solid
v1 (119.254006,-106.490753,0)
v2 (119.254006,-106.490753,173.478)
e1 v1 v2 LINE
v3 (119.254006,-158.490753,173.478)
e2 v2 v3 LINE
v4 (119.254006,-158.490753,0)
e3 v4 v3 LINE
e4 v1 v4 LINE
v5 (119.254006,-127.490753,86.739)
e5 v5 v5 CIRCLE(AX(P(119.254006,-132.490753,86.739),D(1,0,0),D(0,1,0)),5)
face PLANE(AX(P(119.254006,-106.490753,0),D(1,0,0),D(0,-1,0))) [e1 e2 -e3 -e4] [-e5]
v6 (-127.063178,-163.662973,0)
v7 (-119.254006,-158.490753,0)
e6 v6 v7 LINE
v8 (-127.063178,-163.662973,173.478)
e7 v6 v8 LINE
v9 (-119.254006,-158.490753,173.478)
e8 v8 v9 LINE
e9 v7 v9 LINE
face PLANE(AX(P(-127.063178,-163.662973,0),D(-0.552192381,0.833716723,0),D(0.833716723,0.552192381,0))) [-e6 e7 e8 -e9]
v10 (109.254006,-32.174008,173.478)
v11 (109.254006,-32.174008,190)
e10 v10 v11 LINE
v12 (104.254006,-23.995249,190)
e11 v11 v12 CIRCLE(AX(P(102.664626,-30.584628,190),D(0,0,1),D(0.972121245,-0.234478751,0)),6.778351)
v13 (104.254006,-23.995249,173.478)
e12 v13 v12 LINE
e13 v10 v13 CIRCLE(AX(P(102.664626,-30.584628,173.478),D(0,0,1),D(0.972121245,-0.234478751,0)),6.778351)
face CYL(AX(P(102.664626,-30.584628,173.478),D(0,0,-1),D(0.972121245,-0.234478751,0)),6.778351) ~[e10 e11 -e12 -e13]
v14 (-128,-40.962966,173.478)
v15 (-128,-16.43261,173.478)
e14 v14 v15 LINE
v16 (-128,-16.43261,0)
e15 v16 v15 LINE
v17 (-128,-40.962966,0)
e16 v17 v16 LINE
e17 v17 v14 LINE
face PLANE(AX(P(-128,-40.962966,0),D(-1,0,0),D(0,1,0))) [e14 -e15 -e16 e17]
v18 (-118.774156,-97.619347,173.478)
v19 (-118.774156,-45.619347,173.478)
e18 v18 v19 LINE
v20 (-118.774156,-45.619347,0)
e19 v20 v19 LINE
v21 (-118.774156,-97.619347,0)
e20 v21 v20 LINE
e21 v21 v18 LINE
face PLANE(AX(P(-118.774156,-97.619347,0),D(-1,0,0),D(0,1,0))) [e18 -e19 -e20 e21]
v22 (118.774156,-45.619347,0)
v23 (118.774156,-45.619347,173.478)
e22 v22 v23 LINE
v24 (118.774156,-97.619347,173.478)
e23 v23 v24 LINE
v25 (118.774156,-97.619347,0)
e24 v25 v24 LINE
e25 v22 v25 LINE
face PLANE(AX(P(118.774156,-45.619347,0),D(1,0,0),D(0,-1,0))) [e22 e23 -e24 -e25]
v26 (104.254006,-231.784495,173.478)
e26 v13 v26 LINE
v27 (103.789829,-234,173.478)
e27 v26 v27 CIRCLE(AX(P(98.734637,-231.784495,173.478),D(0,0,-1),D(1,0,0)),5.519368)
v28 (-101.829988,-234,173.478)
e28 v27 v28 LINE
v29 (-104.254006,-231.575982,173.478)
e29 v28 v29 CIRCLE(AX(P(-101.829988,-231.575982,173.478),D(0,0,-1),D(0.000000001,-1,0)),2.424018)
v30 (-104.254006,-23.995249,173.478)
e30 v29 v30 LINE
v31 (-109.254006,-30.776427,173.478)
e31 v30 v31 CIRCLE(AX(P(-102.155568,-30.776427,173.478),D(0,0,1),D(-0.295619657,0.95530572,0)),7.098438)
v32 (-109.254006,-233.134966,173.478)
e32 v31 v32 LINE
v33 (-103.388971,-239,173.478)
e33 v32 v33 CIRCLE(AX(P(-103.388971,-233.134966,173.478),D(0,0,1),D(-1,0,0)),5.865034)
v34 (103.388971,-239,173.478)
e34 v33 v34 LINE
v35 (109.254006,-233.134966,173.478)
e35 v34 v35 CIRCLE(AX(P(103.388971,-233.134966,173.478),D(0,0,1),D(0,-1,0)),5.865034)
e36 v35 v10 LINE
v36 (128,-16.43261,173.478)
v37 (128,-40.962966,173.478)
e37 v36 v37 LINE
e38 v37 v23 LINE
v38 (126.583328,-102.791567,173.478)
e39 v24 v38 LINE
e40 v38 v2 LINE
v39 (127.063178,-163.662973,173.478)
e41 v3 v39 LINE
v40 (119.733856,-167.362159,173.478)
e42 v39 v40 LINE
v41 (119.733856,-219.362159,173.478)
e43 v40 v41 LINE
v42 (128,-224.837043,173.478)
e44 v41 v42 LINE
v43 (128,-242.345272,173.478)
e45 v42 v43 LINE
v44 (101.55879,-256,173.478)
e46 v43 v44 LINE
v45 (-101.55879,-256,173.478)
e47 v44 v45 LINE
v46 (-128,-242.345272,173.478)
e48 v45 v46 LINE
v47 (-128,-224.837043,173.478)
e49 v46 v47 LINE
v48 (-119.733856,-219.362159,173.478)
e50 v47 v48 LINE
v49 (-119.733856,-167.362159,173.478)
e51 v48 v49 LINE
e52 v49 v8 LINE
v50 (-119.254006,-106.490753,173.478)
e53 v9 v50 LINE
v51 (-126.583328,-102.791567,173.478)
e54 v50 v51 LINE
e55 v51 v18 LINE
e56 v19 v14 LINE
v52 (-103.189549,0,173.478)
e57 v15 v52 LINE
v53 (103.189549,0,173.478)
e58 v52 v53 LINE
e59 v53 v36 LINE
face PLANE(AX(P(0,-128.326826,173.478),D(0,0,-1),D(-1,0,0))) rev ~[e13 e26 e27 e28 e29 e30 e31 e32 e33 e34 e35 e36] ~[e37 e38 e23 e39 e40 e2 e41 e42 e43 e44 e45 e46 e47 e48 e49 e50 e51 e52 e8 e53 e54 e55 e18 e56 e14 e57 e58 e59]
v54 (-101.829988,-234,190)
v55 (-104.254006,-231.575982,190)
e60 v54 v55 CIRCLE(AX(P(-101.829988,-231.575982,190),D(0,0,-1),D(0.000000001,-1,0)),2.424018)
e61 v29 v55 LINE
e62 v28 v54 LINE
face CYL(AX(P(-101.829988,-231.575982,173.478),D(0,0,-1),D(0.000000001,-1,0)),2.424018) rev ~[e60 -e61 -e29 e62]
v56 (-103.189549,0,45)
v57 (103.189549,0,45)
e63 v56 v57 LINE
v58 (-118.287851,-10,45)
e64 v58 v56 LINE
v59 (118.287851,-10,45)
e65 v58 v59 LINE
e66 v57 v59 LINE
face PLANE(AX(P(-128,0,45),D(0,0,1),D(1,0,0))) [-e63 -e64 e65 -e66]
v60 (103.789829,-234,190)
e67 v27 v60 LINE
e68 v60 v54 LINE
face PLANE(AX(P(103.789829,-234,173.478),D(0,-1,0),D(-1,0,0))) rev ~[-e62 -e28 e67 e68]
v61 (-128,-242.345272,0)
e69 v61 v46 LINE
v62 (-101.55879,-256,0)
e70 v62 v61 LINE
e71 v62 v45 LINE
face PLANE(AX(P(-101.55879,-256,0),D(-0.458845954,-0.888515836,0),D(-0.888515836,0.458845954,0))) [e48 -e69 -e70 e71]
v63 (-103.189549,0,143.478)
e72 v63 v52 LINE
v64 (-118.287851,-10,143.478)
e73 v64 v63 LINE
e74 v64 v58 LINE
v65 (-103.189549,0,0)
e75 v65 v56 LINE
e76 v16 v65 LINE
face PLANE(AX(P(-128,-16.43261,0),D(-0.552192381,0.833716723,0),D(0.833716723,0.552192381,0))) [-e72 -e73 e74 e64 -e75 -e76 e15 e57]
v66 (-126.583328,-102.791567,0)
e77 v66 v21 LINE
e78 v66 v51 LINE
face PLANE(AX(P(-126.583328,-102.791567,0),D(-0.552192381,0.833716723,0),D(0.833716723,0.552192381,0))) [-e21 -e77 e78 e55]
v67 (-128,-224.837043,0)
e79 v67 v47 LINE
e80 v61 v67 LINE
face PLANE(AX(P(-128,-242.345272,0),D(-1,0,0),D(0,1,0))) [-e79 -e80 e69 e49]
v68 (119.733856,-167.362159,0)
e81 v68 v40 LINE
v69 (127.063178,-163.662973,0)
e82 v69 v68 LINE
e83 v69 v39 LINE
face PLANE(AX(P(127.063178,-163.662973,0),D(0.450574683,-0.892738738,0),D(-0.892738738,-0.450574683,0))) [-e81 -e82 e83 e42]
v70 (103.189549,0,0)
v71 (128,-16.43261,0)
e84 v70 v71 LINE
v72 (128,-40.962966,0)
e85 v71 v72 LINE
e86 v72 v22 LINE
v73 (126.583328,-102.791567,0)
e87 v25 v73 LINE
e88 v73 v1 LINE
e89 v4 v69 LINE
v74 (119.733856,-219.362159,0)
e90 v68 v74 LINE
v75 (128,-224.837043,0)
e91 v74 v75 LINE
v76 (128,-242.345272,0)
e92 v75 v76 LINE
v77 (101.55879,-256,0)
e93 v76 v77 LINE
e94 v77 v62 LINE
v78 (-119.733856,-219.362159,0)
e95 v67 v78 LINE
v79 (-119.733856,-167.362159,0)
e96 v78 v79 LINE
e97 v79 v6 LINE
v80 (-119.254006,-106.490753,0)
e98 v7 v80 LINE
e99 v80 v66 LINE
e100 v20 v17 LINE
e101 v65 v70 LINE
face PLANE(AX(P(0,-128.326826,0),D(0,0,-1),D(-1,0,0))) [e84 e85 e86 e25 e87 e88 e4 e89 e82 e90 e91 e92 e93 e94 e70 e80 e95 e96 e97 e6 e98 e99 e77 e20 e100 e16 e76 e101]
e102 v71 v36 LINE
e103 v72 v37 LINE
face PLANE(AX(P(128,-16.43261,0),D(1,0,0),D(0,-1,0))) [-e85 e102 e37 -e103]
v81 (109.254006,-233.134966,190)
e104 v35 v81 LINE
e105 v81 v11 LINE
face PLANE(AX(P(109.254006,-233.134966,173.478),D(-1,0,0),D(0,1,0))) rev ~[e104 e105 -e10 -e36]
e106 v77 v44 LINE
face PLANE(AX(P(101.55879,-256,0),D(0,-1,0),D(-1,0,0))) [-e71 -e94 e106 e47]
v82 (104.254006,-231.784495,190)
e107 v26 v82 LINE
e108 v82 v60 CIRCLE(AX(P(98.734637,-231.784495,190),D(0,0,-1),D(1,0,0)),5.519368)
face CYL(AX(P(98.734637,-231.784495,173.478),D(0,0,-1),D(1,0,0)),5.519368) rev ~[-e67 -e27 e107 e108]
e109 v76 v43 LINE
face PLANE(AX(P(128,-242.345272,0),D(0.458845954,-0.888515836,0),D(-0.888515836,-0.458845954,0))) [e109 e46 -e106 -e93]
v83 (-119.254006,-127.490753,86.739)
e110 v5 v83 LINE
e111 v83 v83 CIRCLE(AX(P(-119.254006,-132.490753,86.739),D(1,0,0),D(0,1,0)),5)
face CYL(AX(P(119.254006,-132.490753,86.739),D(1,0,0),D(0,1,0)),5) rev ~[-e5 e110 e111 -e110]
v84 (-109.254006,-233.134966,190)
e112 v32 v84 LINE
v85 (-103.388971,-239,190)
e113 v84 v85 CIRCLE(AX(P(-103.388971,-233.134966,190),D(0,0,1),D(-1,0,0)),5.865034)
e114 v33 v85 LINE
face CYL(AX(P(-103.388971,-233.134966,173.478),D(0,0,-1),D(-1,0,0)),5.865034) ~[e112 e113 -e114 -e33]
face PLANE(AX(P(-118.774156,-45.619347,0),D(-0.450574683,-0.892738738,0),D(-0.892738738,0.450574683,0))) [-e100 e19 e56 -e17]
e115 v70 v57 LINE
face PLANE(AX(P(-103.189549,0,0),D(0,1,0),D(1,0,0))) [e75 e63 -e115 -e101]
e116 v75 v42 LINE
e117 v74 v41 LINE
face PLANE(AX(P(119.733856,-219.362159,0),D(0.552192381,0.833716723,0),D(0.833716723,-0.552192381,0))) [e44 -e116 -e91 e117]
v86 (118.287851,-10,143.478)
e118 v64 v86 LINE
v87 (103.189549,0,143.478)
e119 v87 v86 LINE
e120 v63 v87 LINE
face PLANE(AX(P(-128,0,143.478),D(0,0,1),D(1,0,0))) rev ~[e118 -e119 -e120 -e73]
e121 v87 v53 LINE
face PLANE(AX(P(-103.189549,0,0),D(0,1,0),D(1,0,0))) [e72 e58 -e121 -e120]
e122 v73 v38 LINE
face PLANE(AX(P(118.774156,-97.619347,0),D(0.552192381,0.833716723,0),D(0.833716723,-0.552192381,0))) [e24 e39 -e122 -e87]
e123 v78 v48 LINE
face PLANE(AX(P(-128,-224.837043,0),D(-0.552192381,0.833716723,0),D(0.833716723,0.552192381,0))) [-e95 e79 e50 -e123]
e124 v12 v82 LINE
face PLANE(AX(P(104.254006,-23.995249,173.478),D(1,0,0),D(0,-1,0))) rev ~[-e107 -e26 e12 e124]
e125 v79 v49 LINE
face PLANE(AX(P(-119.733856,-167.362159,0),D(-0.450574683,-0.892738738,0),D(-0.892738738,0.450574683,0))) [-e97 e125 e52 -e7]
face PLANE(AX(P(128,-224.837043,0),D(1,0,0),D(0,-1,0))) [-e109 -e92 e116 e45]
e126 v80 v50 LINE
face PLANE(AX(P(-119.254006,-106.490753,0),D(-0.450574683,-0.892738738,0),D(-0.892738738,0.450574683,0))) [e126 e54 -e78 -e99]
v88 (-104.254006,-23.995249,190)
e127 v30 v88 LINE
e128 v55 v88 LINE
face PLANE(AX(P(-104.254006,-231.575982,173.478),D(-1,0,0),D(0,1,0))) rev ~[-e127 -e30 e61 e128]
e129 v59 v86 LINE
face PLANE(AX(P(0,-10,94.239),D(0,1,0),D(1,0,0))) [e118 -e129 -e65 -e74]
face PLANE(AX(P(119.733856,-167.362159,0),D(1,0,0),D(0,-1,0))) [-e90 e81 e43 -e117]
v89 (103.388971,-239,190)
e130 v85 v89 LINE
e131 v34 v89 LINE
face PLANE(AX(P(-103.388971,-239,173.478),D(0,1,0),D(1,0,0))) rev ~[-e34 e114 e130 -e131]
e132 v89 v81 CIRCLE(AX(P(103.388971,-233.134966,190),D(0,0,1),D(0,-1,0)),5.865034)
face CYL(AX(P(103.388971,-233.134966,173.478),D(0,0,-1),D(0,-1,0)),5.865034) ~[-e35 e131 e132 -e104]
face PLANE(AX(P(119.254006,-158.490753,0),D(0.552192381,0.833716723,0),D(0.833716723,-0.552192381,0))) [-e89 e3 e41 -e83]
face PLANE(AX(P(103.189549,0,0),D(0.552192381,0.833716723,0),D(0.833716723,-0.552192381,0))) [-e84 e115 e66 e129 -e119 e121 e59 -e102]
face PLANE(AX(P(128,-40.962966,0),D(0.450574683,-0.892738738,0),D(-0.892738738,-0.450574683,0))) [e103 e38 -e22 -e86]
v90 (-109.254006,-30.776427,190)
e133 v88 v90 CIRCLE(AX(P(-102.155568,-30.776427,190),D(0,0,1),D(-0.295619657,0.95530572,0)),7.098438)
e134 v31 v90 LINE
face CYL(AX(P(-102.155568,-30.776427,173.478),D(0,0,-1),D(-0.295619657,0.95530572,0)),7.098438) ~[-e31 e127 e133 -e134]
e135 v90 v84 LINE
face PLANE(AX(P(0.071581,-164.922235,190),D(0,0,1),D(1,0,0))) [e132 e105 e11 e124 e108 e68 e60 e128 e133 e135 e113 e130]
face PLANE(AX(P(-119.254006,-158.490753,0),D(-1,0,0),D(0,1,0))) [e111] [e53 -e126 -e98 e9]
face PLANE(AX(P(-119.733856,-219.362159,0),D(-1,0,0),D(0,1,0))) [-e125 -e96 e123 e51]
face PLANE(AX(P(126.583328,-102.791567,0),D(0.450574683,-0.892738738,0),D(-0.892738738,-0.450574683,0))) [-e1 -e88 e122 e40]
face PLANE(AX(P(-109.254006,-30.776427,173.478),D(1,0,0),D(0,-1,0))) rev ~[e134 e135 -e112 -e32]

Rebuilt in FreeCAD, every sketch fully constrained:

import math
import FreeCAD as App
import Part
import Sketcher
from FreeCAD import Vector
Q = App.Units.Quantity


def add_polygon(sketch, points):
    """Adds a closed chain of lines whose ends are joined by coincident constraints."""
    first, n = sketch.GeometryCount, len(points)
    for a, b in zip(points, points[1:] + points[:1]):
        sketch.addGeometry(Part.LineSegment(App.Vector(*a, 0), App.Vector(*b, 0)), False)
    for i in range(n):
        sketch.addConstraint(Sketcher.Constraint("Coincident", first + i, 2, first + (i + 1) % n, 1))

doc = App.newDocument("Part")
body = doc.addObject("PartDesign::Body", "Body")

# Sketch on XY plane
sketch1 = body.newObject("Sketcher::SketchObject", "Sketch")
sketch1.AttachmentSupport = (doc.getObject("XY_Plane"), [""])
sketch1.MapMode = "FlatFace"
add_polygon(sketch1, [(103, 0), (-103, 0), (-128, -16), (-128, -41), (-119, -46), (-119, -98), (-127, -103), (-119, -106), (-119, -158), (-127, -164), (-120, -167), (-120, -219), (-128, -225), (-128, -242), (-102, -256), (102, -256), (128, -242), (128, -225), (120, -219), (120, -167), (127, -164), (119, -158), (119, -106), (127, -103), (119, -98), (119, -46), (128, -41), (128, -16)])  # lines 0-27
sketch1.addConstraint(Sketcher.Constraint("Horizontal", 0))
sketch1.addConstraint(Sketcher.Constraint("Vertical", 2))
sketch1.addConstraint(Sketcher.Constraint("Vertical", 4))
sketch1.addConstraint(Sketcher.Constraint("Vertical", 7))
sketch1.addConstraint(Sketcher.Constraint("Vertical", 10))
sketch1.addConstraint(Sketcher.Constraint("Vertical", 12))
sketch1.addConstraint(Sketcher.Constraint("Horizontal", 14))
sketch1.addConstraint(Sketcher.Constraint("Vertical", 16))
sketch1.addConstraint(Sketcher.Constraint("Vertical", 18))
sketch1.addConstraint(Sketcher.Constraint("Vertical", 21))
sketch1.addConstraint(Sketcher.Constraint("Vertical", 24))
sketch1.addConstraint(Sketcher.Constraint("Vertical", 26))
sketch1.addConstraint(Sketcher.Constraint("Symmetric", 0, 2, 27, 2, -1, 1))
sketch1.addConstraint(Sketcher.Constraint("Symmetric", 12, 2, 15, 2, -2))
sketch1.addConstraint(Sketcher.Constraint("Symmetric", 10, 2, 17, 2, -2))
sketch1.addConstraint(Sketcher.Constraint("Symmetric", 8, 2, 19, 2, -2))
sketch1.addConstraint(Sketcher.Constraint("Symmetric", 7, 2, 20, 2, -2))
sketch1.addConstraint(Sketcher.Constraint("Symmetric", 5, 2, 22, 2, -2))
sketch1.addConstraint(Sketcher.Constraint("Symmetric", 4, 2, 23, 2, -2))
sketch1.addConstraint(Sketcher.Constraint("Symmetric", 2, 2, 25, 2, -2))
sketch1.addConstraint(Sketcher.Constraint("Parallel", 1, 5))
sketch1.addConstraint(Sketcher.Constraint("Parallel", 3, 6))
sketch1.addConstraint(Sketcher.Constraint("Parallel", 5, 8))
sketch1.addConstraint(Sketcher.Constraint("Parallel", 6, 9))
sketch1.addConstraint(Sketcher.Constraint("Parallel", 8, 11))
sketch1.addConstraint(Sketcher.Constraint("Parallel", 17, 20))
sketch1.addConstraint(Sketcher.Constraint("Parallel", 19, 22))
sketch1.addConstraint(Sketcher.Constraint("Parallel", 22, 25))
sketch1.addConstraint(Sketcher.Constraint("Parallel", 23, 27))
sketch1.addConstraint(Sketcher.Constraint("Horizontal", 9, 2, 18, 2))
sketch1.addConstraint(Sketcher.Constraint("Vertical", 2, 2, 11, 2))
sketch1.addConstraint(Sketcher.Constraint("Equal", 4, 7))
sketch1.addConstraint(Sketcher.Constraint("Equal", 7, 10))
sketch1.addConstraint(Sketcher.Constraint("Equal", 5, 8))
sketch1.addConstraint(Sketcher.Constraint("Equal", 6, 9))
sketch1.addConstraint(Sketcher.Constraint("Equal", 1, 13))
sketch1.addConstraint(Sketcher.Constraint("Equal", 13, 15))
sketch1.addConstraint(Sketcher.Constraint("DistanceY", 4, 2, 4, 1, Q("52 mm")))
sketch1.addConstraint(Sketcher.Constraint("DistanceX", 1, 2, -1, 1, Q("128 mm")))
sketch1.addConstraint(Sketcher.Constraint("DistanceY", 13, 2, -1, 1, Q("256 mm")))
sketch1.addConstraint(Sketcher.Constraint("Distance", 5, Q("9.366698 mm")))
sketch1.addConstraint(Sketcher.Constraint("DistanceX", 14, 1, 14, 2, Q("203.11758 mm")))
sketch1.addConstraint(Sketcher.Constraint("DistanceY", 12, 2, 12, 1, Q("17.508229 mm")))
sketch1.addConstraint(Sketcher.Constraint("DistanceY", 5, 2, 2, 2, Q("61.828601 mm")))
sketch1.addConstraint(Sketcher.Constraint("DistanceX", 9, 2, 4, 2, Q("0.9597 mm")))
sketch1.addConstraint(Sketcher.Constraint("DistanceY", 12, 2, 8, 2, Q("78.682299 mm")))
sketch1.addConstraint(Sketcher.Constraint("Distance", 1, Q("29.75885 mm")))
sketch1.addConstraint(Sketcher.Constraint("Distance", 6, Q("8.20993 mm")))
pad1 = body.newObject("PartDesign::Pad", "Pad")
pad1.Profile = sketch1
pad1.Length = 173.478

# Sketch on XY plane
sketch2 = body.newObject("Sketcher::SketchObject", "Sketch001")
sketch2.AttachmentSupport = (doc.getObject("XY_Plane"), [""])
sketch2.MapMode = "FlatFace"
sketch2.AttachmentOffset = App.Placement(Vector(0, 0, 173.478), App.Rotation())
sketch2.addGeometry(Part.LineSegment(Vector(-109.3, -30.8, 0), Vector(-109.3, -233.1, 0)), False)
sketch2.addGeometry(Part.ArcOfCircle(Part.Circle(Vector(-103.4, -233.1, 0), Vector(0, 0, 1), 5.9), math.radians(180), math.radians(270)), False)
sketch2.addGeometry(Part.LineSegment(Vector(-103.4, -239, 0), Vector(103.4, -239, 0)), False)
sketch2.addGeometry(Part.ArcOfCircle(Part.Circle(Vector(103.4, -233.1, 0), Vector(0, 0, 1), 5.9), math.radians(-90), math.radians(0)), False)
sketch2.addGeometry(Part.LineSegment(Vector(109.3, -233.1, 0), Vector(109.3, -32.2, 0)), False)
sketch2.addGeometry(Part.ArcOfCircle(Part.Circle(Vector(102.7, -30.6, 0), Vector(0, 0, 1), 6.8), math.radians(-14), math.radians(76)), False)
sketch2.addGeometry(Part.LineSegment(Vector(104.3, -24, 0), Vector(104.3, -231.8, 0)), False)
sketch2.addGeometry(Part.ArcOfCircle(Part.Circle(Vector(98.7, -231.8, 0), Vector(0, 0, 1), 5.5), math.radians(-24), math.radians(0)), False)
sketch2.addGeometry(Part.LineSegment(Vector(103.8, -234, 0), Vector(-101.8, -234, 0)), False)
sketch2.addGeometry(Part.ArcOfCircle(Part.Circle(Vector(-101.8, -231.6, 0), Vector(0, 0, 1), 2.4), math.radians(180), math.radians(270)), False)
sketch2.addGeometry(Part.LineSegment(Vector(-104.3, -231.6, 0), Vector(-104.3, -24, 0)), False)
sketch2.addGeometry(Part.ArcOfCircle(Part.Circle(Vector(-102.2, -30.8, 0), Vector(0, 0, 1), 7.1), math.radians(107), math.radians(180)), False)
sketch2.addConstraint(Sketcher.Constraint("Tangent", 0, 2, 1, 1))
sketch2.addConstraint(Sketcher.Constraint("Tangent", 1, 2, 2, 1))
sketch2.addConstraint(Sketcher.Constraint("Tangent", 2, 2, 3, 1))
sketch2.addConstraint(Sketcher.Constraint("Tangent", 3, 2, 4, 1))
sketch2.addConstraint(Sketcher.Constraint("Coincident", 4, 2, 5, 1))
sketch2.addConstraint(Sketcher.Constraint("Coincident", 5, 2, 6, 1))
sketch2.addConstraint(Sketcher.Constraint("Tangent", 6, 2, 7, 2))
sketch2.addConstraint(Sketcher.Constraint("Coincident", 7, 1, 8, 1))
sketch2.addConstraint(Sketcher.Constraint("Tangent", 8, 2, 9, 2))
sketch2.addConstraint(Sketcher.Constraint("Tangent", 9, 1, 10, 1))
sketch2.addConstraint(Sketcher.Constraint("Coincident", 10, 2, 11, 1))
sketch2.addConstraint(Sketcher.Constraint("Tangent", 11, 2, 0, 1))
sketch2.addConstraint(Sketcher.Constraint("Vertical", 0))
sketch2.addConstraint(Sketcher.Constraint("Horizontal", 2))
sketch2.addConstraint(Sketcher.Constraint("Vertical", 4))
sketch2.addConstraint(Sketcher.Constraint("Vertical", 6))
sketch2.addConstraint(Sketcher.Constraint("Horizontal", 8))
sketch2.addConstraint(Sketcher.Constraint("Vertical", 10))
sketch2.addConstraint(Sketcher.Constraint("Equal", 1, 3))
sketch2.addConstraint(Sketcher.Constraint("Symmetric", 5, 2, 10, 2, -2))
sketch2.addConstraint(Sketcher.Constraint("DistanceY", 1, 2, -1, 1, Q("239 mm")))
sketch2.addConstraint(Sketcher.Constraint("DistanceY", 7, 1, -1, 1, Q("234 mm")))
sketch2.addConstraint(Sketcher.Constraint("DistanceX", 5, 2, 4, 2, Q("5 mm")))
sketch2.addConstraint(Sketcher.Constraint("DistanceX", 0, 2, 9, 1, Q("5 mm")))
sketch2.addConstraint(Sketcher.Constraint("Radius", 5, Q("6.778351 mm")))
sketch2.addConstraint(Sketcher.Constraint("Radius", 7, Q("5.519368 mm")))
sketch2.addConstraint(Sketcher.Constraint("Radius", 9, Q("2.424018 mm")))
sketch2.addConstraint(Sketcher.Constraint("Radius", 1, Q("5.865034 mm")))
sketch2.addConstraint(Sketcher.Constraint("Radius", 11, Q("7.098438 mm")))
sketch2.addConstraint(Sketcher.Constraint("DistanceY", 0, 2, 0, 1, Q("202.358538 mm")))
sketch2.addConstraint(Sketcher.Constraint("DistanceY", 11, 3, 5, 3, Q("0.191799 mm")))
sketch2.addConstraint(Sketcher.Constraint("DistanceX", 2, 1, 2, 2, Q("206.777943 mm")))
sketch2.addConstraint(Sketcher.Constraint("DistanceX", 8, 2, 8, 1, Q("205.619817 mm")))
pad2 = body.newObject("PartDesign::Pad", "Pad001")
pad2.Profile = sketch2
pad2.Length = 16.522

# Sketch on XZ plane
sketch3 = body.newObject("Sketcher::SketchObject", "Sketch002")
sketch3.AttachmentSupport = (doc.getObject("XZ_Plane"), [""])
sketch3.MapMode = "FlatFace"
add_polygon(sketch3, [(-128, 45), (-128, 143), (128, 143), (128, 45)])  # lines 0-3
sketch3.addConstraint(Sketcher.Constraint("Vertical", 0))
sketch3.addConstraint(Sketcher.Constraint("Horizontal", 1))
sketch3.addConstraint(Sketcher.Constraint("Vertical", 2))
sketch3.addConstraint(Sketcher.Constraint("Horizontal", 3))
sketch3.addConstraint(Sketcher.Constraint("DistanceX", 1, 1, 1, 2, Q("256 mm")))
sketch3.addConstraint(Sketcher.Constraint("DistanceX", 0, 2, -1, 1, Q("128 mm")))
sketch3.addConstraint(Sketcher.Constraint("DistanceY", -1, 1, 2, 2, Q("45 mm")))
sketch3.addConstraint(Sketcher.Constraint("DistanceY", 0, 1, 0, 2, Q("98.478 mm")))
pocket1 = body.newObject("PartDesign::Pocket", "Pocket")
pocket1.Profile = sketch3
pocket1.Length = 10
pocket1.Reversed = True

# Sketch on YZ plane
sketch4 = body.newObject("Sketcher::SketchObject", "Sketch003")
sketch4.AttachmentSupport = (doc.getObject("YZ_Plane"), [""])
sketch4.MapMode = "FlatFace"
sketch4.AttachmentOffset = App.Placement(Vector(0, 0, 119.254006), App.Rotation())
sketch4.addGeometry(Part.Circle(Vector(-132, 87, 0), Vector(0, 0, 1), 5), False)
sketch4.addConstraint(Sketcher.Constraint("Diameter", 0, Q("10 mm")))
sketch4.addConstraint(Sketcher.Constraint("DistanceY", -1, 1, 0, 3, Q("86.739 mm")))
sketch4.addConstraint(Sketcher.Constraint("DistanceX", 0, 3, -1, 1, Q("132.490753 mm")))
pocket2 = body.newObject("PartDesign::Pocket", "Pocket001")
pocket2.Profile = sketch4
pocket2.Type = "ThroughAll"

doc.recompute()
